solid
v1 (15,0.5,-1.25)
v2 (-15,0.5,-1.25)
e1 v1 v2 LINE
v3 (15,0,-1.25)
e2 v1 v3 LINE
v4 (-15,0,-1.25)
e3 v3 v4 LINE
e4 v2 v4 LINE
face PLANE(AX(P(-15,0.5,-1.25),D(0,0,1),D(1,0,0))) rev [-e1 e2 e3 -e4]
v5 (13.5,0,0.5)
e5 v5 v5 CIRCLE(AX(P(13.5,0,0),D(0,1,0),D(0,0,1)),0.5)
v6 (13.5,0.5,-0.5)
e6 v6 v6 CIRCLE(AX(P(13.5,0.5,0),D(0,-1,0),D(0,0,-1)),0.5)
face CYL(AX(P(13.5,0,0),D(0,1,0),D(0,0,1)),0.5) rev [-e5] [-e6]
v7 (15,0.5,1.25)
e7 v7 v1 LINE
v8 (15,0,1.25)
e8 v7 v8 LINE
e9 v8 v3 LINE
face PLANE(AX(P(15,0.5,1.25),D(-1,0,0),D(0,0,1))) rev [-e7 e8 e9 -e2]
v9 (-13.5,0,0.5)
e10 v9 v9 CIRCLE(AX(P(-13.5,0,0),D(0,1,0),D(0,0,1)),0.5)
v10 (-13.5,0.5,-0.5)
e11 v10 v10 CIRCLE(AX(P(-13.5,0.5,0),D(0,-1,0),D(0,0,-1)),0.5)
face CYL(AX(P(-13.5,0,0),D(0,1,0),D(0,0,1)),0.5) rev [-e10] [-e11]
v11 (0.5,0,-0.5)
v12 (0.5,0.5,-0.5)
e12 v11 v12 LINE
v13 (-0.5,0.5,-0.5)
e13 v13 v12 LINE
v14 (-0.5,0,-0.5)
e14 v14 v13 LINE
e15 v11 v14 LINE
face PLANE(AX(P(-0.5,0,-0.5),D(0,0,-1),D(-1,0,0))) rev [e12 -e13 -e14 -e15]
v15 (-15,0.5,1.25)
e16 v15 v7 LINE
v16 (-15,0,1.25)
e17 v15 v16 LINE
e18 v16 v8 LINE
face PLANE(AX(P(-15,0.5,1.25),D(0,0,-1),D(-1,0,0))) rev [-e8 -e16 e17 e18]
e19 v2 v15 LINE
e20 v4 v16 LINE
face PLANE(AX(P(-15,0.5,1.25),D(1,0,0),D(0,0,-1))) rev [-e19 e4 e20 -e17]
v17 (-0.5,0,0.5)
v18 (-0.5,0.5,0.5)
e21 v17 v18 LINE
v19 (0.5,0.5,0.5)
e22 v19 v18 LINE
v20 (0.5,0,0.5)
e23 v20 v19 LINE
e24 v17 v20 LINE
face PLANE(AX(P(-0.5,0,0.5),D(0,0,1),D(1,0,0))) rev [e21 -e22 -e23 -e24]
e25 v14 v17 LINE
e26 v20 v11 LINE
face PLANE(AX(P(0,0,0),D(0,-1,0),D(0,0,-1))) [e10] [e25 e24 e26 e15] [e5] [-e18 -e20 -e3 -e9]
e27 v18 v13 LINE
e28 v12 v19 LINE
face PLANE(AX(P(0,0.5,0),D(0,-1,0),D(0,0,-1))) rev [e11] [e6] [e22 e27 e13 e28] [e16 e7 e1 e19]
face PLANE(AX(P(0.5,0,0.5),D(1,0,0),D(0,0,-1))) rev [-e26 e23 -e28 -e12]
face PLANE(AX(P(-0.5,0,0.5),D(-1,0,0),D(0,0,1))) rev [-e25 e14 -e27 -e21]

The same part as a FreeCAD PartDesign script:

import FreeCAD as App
import Part
import Sketcher
from FreeCAD import Vector

doc = App.newDocument("Part")
params = doc.addObject("Spreadsheet::Sheet", "Params")
for row, (alias, value) in enumerate([
    ("sketch1_width", "30 mm"),
    ("sketch1_height", "2.5 mm"),
    ("pad1_length", "0.5 mm"),
    ("sketch2_diameter", "1 mm"),
    ("sketch2_width", "1 mm"),
], start=1):
    params.set(f"A{row}", alias)
    params.set(f"B{row}", "=" + value)
    params.setAlias(f"B{row}", alias)

body = doc.addObject("PartDesign::Body", "Body")

sketch1 = doc.addObject("Sketcher::SketchObject", "Sketch")
body.addObject(sketch1)
sketch1.AttachmentSupport = (doc.XZ_Plane, [""])
sketch1.MapMode = "FlatFace"
sketch1.addGeometry(Part.LineSegment(Vector(-15, -1.2, 0), Vector(-15, 1.2, 0)), False)
sketch1.addGeometry(Part.LineSegment(Vector(-15, 1.2, 0), Vector(15, 1.2, 0)), False)
sketch1.addGeometry(Part.LineSegment(Vector(15, 1.2, 0), Vector(15, -1.2, 0)), False)
sketch1.addGeometry(Part.LineSegment(Vector(15, -1.2, 0), Vector(-15, -1.2, 0)), False)
sketch1.addConstraint(Sketcher.Constraint("Coincident", 0, 2, 1, 1))
sketch1.addConstraint(Sketcher.Constraint("Coincident", 1, 2, 2, 1))
sketch1.addConstraint(Sketcher.Constraint("Coincident", 2, 2, 3, 1))
sketch1.addConstraint(Sketcher.Constraint("Coincident", 3, 2, 0, 1))
sketch1.addConstraint(Sketcher.Constraint("Vertical", 0))
sketch1.addConstraint(Sketcher.Constraint("Horizontal", 1))
sketch1.addConstraint(Sketcher.Constraint("Vertical", 2))
sketch1.addConstraint(Sketcher.Constraint("Horizontal", 3))
sketch1.addConstraint(Sketcher.Constraint("Symmetric", 0, 2, 2, 2, -1, 1))
sketch1.addConstraint(Sketcher.Constraint("DistanceX", 1, 1, 1, 2, 30.0))
sketch1.addConstraint(Sketcher.Constraint("DistanceY", 0, 1, 0, 2, 2.5))
sketch1.setExpression("Constraints[9]", "Params.sketch1_width")
sketch1.setExpression("Constraints[10]", "Params.sketch1_height")
pad1 = doc.addObject("PartDesign::Pad", "Pad")
body.addObject(pad1)
pad1.Profile = sketch1
pad1.setExpression("Length", "Params.pad1_length")
pad1.Reversed = True

sketch2 = doc.addObject("Sketcher::SketchObject", "Sketch001")
body.addObject(sketch2)
sketch2.AttachmentSupport = (doc.XZ_Plane, [""])
sketch2.MapMode = "FlatFace"
sketch2.AttachmentOffset = App.Placement(Vector(0, 0, -0.5), App.Rotation())
sketch2.addGeometry(Part.Circle(Vector(-13.5, 0, 0), Vector(0, 0, 1), 0.5), False)
sketch2.addGeometry(Part.Circle(Vector(13.5, 0, 0), Vector(0, 0, 1), 0.5), False)
sketch2.addGeometry(Part.LineSegment(Vector(-0.5, -0.5, 0), Vector(-0.5, 0.5, 0)), False)
sketch2.addGeometry(Part.LineSegment(Vector(-0.5, 0.5, 0), Vector(0.5, 0.5, 0)), False)
sketch2.addGeometry(Part.LineSegment(Vector(0.5, 0.5, 0), Vector(0.5, -0.5, 0)), False)
sketch2.addGeometry(Part.LineSegment(Vector(0.5, -0.5, 0), Vector(-0.5, -0.5, 0)), False)
sketch2.addConstraint(Sketcher.Constraint("Coincident", 2, 2, 3, 1))
sketch2.addConstraint(Sketcher.Constraint("Coincident", 3, 2, 4, 1))
sketch2.addConstraint(Sketcher.Constraint("Coincident", 4, 2, 5, 1))
sketch2.addConstraint(Sketcher.Constraint("Coincident", 5, 2, 2, 1))
sketch2.addConstraint(Sketcher.Constraint("Vertical", 2))
sketch2.addConstraint(Sketcher.Constraint("Horizontal", 3))
sketch2.addConstraint(Sketcher.Constraint("Vertical", 4))
sketch2.addConstraint(Sketcher.Constraint("Horizontal", 5))
sketch2.addConstraint(Sketcher.Constraint("Equal", 0, 1))
sketch2.addConstraint(Sketcher.Constraint("Symmetric", 0, 3, 1, 3, -1, 1))
sketch2.addConstraint(Sketcher.Constraint("Symmetric", 2, 2, 4, 2, -1, 1))
sketch2.addConstraint(Sketcher.Constraint("PointOnObject", 0, 3, -1))
sketch2.addConstraint(Sketcher.Constraint("Equal", 5, 2))
sketch2.addConstraint(Sketcher.Constraint("Diameter", 0, 1.0))
sketch2.addConstraint(Sketcher.Constraint("DistanceX", 3, 1, 3, 2, 1.0))
sketch2.addConstraint(Sketcher.Constraint("DistanceX", 0, 3, 1, 3, 27.0))
sketch2.setExpression("Constraints[13]", "Params.sketch2_diameter")
sketch2.setExpression("Constraints[14]", "Params.sketch2_width")
pocket1 = doc.addObject("PartDesign::Pocket", "Pocket")
body.addObject(pocket1)
pocket1.Profile = sketch2
pocket1.Type = "ThroughAll"
pocket1.Midplane = True

doc.recompute()
